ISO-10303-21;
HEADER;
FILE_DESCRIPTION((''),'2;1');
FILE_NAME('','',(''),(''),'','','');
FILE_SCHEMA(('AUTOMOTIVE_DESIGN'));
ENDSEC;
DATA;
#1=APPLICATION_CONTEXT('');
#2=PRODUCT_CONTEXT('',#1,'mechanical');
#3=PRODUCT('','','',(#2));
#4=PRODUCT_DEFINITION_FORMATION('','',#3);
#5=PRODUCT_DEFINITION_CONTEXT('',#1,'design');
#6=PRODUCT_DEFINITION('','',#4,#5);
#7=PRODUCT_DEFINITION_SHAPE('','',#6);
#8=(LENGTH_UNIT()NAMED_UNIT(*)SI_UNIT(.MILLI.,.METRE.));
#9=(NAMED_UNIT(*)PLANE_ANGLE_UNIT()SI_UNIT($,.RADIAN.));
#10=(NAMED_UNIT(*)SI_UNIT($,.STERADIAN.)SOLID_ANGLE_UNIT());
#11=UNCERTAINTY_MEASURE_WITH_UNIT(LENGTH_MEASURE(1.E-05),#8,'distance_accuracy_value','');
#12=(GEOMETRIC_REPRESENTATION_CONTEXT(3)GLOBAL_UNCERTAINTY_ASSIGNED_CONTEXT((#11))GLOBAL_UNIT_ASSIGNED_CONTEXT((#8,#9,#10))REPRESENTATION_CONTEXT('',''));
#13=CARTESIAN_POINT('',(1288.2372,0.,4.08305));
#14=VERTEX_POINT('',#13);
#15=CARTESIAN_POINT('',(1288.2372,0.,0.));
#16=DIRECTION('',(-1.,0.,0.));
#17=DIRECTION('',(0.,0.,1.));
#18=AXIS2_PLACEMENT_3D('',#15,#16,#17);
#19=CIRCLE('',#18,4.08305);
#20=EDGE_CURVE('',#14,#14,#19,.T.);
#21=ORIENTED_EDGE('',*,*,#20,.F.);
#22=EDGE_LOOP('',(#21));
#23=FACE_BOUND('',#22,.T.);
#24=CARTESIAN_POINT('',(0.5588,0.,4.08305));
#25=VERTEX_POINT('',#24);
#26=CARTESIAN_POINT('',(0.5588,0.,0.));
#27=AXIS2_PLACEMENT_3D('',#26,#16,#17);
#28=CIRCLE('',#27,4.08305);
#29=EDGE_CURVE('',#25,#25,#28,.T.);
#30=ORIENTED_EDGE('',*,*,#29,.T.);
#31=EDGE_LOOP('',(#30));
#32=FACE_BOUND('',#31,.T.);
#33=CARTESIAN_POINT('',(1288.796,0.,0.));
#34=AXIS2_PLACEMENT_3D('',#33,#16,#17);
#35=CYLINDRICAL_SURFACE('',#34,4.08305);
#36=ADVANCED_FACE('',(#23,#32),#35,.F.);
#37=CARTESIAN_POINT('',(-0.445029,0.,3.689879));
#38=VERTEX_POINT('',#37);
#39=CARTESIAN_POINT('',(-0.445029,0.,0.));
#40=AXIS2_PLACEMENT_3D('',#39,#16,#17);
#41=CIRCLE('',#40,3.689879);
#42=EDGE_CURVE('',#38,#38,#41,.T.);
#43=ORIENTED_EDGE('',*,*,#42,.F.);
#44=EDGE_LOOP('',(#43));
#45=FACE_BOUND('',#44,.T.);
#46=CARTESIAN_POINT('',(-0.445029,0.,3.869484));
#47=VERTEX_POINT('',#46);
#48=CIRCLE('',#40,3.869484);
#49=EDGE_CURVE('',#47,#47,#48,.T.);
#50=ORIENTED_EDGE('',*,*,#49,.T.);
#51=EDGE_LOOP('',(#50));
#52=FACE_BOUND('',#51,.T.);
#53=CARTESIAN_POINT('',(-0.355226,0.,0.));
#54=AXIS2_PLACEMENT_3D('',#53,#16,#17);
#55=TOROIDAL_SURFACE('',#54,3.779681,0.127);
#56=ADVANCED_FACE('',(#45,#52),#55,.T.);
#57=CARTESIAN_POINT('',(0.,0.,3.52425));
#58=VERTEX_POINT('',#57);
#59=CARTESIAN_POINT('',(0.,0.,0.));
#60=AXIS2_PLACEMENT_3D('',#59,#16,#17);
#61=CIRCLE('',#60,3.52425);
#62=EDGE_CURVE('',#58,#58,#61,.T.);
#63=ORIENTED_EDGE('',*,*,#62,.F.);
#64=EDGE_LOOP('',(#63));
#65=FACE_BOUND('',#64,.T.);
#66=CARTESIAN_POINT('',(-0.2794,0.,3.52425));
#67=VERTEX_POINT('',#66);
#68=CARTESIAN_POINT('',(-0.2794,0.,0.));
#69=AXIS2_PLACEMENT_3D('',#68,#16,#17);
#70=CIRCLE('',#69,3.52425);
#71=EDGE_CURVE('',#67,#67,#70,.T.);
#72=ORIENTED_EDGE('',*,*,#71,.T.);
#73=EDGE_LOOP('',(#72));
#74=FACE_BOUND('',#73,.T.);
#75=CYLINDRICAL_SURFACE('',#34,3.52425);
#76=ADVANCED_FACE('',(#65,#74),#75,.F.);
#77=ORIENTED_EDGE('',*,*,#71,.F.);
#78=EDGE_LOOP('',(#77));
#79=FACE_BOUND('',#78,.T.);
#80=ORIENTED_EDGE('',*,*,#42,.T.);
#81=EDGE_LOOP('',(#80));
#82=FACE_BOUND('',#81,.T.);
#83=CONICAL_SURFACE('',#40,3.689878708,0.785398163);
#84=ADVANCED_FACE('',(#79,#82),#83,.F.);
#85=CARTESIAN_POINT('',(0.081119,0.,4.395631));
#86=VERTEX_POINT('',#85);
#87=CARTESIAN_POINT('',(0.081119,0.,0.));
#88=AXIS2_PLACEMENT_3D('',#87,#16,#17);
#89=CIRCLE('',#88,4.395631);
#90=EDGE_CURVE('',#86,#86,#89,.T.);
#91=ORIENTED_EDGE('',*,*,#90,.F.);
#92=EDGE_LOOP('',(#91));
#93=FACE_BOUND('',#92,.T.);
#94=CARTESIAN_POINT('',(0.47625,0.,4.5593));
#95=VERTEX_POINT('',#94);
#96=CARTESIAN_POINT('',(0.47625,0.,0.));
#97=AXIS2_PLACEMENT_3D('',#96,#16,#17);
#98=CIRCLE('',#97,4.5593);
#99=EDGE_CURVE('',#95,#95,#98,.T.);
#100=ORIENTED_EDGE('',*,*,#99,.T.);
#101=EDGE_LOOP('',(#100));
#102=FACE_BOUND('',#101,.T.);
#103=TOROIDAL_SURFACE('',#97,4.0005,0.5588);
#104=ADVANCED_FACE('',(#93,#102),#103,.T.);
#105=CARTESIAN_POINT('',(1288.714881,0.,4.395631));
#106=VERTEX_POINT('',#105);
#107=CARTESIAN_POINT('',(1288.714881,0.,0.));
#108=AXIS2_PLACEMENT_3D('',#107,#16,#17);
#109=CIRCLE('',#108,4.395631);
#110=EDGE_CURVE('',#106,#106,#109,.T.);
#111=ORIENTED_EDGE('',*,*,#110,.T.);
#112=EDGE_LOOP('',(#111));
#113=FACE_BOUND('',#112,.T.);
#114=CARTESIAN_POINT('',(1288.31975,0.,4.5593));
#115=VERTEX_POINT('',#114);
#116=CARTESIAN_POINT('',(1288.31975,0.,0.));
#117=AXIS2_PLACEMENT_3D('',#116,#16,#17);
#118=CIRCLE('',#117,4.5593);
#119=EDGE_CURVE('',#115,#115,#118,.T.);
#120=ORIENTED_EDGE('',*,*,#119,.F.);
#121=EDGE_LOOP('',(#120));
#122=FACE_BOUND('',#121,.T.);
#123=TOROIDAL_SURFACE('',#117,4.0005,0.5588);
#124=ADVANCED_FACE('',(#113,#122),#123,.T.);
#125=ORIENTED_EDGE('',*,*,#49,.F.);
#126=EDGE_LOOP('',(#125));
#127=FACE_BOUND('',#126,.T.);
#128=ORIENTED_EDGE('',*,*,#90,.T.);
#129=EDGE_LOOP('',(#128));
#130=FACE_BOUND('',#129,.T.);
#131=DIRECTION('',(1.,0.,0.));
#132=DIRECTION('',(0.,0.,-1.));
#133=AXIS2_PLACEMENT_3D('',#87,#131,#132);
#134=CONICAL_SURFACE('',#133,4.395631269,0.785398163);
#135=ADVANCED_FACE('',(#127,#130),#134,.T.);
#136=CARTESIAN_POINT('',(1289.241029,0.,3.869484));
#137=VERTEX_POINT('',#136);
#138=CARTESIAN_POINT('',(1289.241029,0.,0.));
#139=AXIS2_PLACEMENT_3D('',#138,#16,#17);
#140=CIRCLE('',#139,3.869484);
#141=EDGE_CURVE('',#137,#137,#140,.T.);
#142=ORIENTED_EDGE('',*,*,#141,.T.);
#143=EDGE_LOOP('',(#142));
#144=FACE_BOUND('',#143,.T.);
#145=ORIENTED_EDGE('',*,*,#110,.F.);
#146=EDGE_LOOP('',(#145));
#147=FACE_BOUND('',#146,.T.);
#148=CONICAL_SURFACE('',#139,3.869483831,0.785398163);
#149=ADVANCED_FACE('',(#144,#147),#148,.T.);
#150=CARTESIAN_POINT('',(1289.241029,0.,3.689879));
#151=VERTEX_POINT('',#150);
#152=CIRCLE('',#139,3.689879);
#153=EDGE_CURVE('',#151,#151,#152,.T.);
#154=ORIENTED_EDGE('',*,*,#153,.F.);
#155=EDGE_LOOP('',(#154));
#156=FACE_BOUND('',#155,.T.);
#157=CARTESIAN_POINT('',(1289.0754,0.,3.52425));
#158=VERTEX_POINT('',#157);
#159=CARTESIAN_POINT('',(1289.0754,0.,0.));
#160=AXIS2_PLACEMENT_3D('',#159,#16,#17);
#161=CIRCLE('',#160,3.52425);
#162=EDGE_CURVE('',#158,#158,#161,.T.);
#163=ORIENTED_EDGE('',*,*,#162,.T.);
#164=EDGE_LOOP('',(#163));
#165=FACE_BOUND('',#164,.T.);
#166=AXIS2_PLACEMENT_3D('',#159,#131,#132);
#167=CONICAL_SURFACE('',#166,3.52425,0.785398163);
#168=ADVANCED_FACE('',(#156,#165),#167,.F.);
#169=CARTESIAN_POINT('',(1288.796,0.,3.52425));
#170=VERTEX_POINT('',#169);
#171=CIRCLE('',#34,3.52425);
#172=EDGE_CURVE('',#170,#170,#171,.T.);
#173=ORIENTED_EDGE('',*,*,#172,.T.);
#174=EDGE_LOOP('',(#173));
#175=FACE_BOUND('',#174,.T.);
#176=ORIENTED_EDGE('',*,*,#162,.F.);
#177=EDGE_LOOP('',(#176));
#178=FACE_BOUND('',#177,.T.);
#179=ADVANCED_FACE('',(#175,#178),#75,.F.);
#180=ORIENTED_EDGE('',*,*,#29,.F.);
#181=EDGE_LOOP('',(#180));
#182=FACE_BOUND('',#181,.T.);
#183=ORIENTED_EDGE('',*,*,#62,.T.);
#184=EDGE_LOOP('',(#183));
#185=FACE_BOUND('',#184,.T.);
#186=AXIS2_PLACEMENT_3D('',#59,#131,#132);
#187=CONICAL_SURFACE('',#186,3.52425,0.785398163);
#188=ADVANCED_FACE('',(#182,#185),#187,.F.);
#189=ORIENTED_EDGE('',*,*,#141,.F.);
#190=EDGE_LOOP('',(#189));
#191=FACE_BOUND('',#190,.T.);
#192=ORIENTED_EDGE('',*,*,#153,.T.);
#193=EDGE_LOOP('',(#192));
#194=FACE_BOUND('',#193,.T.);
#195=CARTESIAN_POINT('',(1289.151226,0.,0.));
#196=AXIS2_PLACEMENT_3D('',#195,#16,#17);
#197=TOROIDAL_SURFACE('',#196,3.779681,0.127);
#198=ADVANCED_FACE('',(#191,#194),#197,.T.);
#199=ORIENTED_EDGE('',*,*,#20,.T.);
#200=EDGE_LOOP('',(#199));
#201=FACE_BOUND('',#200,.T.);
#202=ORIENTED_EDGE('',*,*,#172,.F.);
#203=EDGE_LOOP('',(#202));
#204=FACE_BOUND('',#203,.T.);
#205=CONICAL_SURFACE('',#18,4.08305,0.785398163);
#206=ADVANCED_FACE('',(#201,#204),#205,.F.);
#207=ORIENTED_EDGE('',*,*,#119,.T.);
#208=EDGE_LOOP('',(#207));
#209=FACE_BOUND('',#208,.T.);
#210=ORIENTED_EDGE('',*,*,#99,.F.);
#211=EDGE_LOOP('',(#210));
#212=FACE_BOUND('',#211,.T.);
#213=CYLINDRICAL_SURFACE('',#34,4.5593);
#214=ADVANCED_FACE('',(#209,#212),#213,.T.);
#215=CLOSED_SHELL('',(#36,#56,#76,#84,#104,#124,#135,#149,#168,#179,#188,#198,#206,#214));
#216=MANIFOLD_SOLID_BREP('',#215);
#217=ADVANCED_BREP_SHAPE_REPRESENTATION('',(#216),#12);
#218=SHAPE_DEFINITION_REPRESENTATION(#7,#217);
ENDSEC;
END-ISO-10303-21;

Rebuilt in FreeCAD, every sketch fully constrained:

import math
import FreeCAD as App
import Part
import Sketcher

V = App.Vector
Q = App.Units.Quantity

doc = App.newDocument("Part")
body = doc.addObject("PartDesign::Body", "Body")

sketch1 = body.newObject("Sketcher::SketchObject", "Sketch")
sketch1.AttachmentSupport = (doc.getObject("XY_Plane"), [""])
sketch1.MapMode = "FlatFace"
sketch1.addGeometry([
    Part.LineSegment(V(-0.45, 3.69, 0), V(-0.28, 3.52, 0)),
    Part.LineSegment(V(-0.28, 3.52, 0), V(0, 3.52, 0)),
    Part.LineSegment(V(0, 3.52, 0), V(0.56, 4.08, 0)),
    Part.LineSegment(V(0.56, 4.08, 0), V(1288.24, 4.08, 0)),
    Part.LineSegment(V(1288.24, 4.08, 0), V(1288.8, 3.52, 0)),
    Part.LineSegment(V(1288.8, 3.52, 0), V(1289.08, 3.52, 0)),
    Part.LineSegment(V(1289.08, 3.52, 0), V(1289.24, 3.69, 0)),
    Part.ArcOfCircle(Part.Circle(V(1289.15, 3.78, 0), V(0, 0, 1), 0.13), math.radians(-45), math.radians(45)),
    Part.LineSegment(V(1289.24, 3.87, 0), V(1288.71, 4.4, 0)),
    Part.ArcOfCircle(Part.Circle(V(1288.32, 4, 0), V(0, 0, 1), 0.56), math.radians(45), math.radians(90)),
    Part.LineSegment(V(1288.32, 4.56, 0), V(0.48, 4.56, 0)),
    Part.ArcOfCircle(Part.Circle(V(0.48, 4, 0), V(0, 0, 1), 0.56), math.radians(90), math.radians(135)),
    Part.LineSegment(V(0.08, 4.4, 0), V(-0.45, 3.87, 0)),
    Part.ArcOfCircle(Part.Circle(V(-0.36, 3.78, 0), V(0, 0, 1), 0.13), math.radians(135), math.radians(225)),
], False)
sketch1.addConstraint([
    Sketcher.Constraint("Coincident", 0, 2, 1, 1),
    Sketcher.Constraint("Coincident", 1, 2, 2, 1),
    Sketcher.Constraint("Coincident", 2, 2, 3, 1),
    Sketcher.Constraint("Coincident", 3, 2, 4, 1),
    Sketcher.Constraint("Coincident", 4, 2, 5, 1),
    Sketcher.Constraint("Coincident", 5, 2, 6, 1),
    Sketcher.Constraint("Tangent", 6, 2, 7, 1),
    Sketcher.Constraint("Tangent", 7, 2, 8, 1),
    Sketcher.Constraint("Tangent", 8, 2, 9, 1),
    Sketcher.Constraint("Tangent", 9, 2, 10, 1),
    Sketcher.Constraint("Tangent", 10, 2, 11, 1),
    Sketcher.Constraint("Tangent", 11, 2, 12, 1),
    Sketcher.Constraint("Tangent", 12, 2, 13, 1),
    Sketcher.Constraint("Tangent", 13, 2, 0, 1),
    Sketcher.Constraint("Horizontal", 1),
    Sketcher.Constraint("Horizontal", 3),
    Sketcher.Constraint("Horizontal", 5),
    Sketcher.Constraint("Horizontal", 10),
    Sketcher.Constraint("Equal", 9, 11),
    Sketcher.Constraint("Equal", 7, 13),
    Sketcher.Constraint("PointOnObject", 1, 2, -2),
    Sketcher.Constraint("Perpendicular", 0, 2),
    Sketcher.Constraint("Perpendicular", 2, 4),
    Sketcher.Constraint("Perpendicular", 4, 6),
    Sketcher.Constraint("Perpendicular", 6, 8),
    Sketcher.Constraint("Perpendicular", 8, 12),
    Sketcher.Constraint("Horizontal", 7, 3, 13, 3),
    Sketcher.Constraint("Horizontal", 1, 2, 4, 2),
    Sketcher.Constraint("Horizontal", 8, 2, 11, 2),
    Sketcher.Constraint("Equal", 1, 5),
    Sketcher.Constraint("Radius", 7, Q("0.005 in")),
    Sketcher.Constraint("Radius", 9, Q("0.022 in")),
    Sketcher.Constraint("DistanceX", 1, 1, 1, 2, Q("0.011 in")),
    Sketcher.Constraint("DistanceX", 3, 1, 3, 2, Q("50.696 in")),
    Sketcher.Constraint("DistanceX", -1, 1, 4, 2, Q("50.74 in")),
    Sketcher.Constraint("DistanceX", 10, 2, 10, 1, Q("50.7025 in")),
    Sketcher.Constraint("DistanceY", -1, 1, 9, 3, Q("0.1575 in")),
    Sketcher.Constraint("DistanceY", -1, 1, 7, 3, Q("3.779681 mm")),
])
revolution = body.newObject("PartDesign::Revolution", "Revolution")
revolution.Profile = sketch1
revolution.ReferenceAxis = (sketch1, ["H_Axis"])
revolution.Angle = 360

doc.recompute()
